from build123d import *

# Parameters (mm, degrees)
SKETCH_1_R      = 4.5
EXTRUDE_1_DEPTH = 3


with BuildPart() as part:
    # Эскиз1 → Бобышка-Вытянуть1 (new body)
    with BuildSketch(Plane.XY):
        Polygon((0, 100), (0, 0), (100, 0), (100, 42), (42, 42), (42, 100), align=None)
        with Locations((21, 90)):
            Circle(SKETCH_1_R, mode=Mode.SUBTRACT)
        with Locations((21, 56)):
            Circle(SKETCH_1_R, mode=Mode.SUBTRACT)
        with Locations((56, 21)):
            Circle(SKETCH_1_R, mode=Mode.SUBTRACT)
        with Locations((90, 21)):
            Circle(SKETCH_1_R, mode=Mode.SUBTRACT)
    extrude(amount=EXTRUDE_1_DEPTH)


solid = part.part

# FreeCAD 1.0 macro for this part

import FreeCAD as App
import Part
import Sketcher
from FreeCAD import Vector
Q = App.Units.Quantity


def add_polygon(sketch, points):
    """Adds a closed chain of lines whose ends are joined by coincident constraints."""
    first, n = sketch.GeometryCount, len(points)
    for a, b in zip(points, points[1:] + points[:1]):
        sketch.addGeometry(Part.LineSegment(App.Vector(*a, 0), App.Vector(*b, 0)), False)
    for i in range(n):
        sketch.addConstraint(Sketcher.Constraint("Coincident", first + i, 2, first + (i + 1) % n, 1))

doc = App.newDocument("Part")
body = doc.addObject("PartDesign::Body", "Body")

sketch1 = body.newObject("Sketcher::SketchObject", "Sketch")
sketch1.AttachmentSupport = (doc.getObject("XY_Plane"), [""])
sketch1.MapMode = "FlatFace"
add_polygon(sketch1, [(0, 100), (0, 0), (100, 0), (100, 42), (42, 42), (42, 100)])
sketch1.addGeometry(Part.Circle(Vector(56, 21, 0), Vector(0, 0, 1), 4.5), False)
sketch1.addGeometry(Part.Circle(Vector(90, 21, 0), Vector(0, 0, 1), 4.5), False)
sketch1.addGeometry(Part.Circle(Vector(21, 56, 0), Vector(0, 0, 1), 4.5), False)
sketch1.addGeometry(Part.Circle(Vector(21, 90, 0), Vector(0, 0, 1), 4.5), False)
sketch1.addConstraint([
    Sketcher.Constraint("Vertical", 0),
    Sketcher.Constraint("Horizontal", 1),
    Sketcher.Constraint("Vertical", 2),
    Sketcher.Constraint("Horizontal", 3),
    Sketcher.Constraint("Vertical", 4),
    Sketcher.Constraint("Horizontal", 5),
    Sketcher.Constraint("Coincident", 0, 2, -1, 1),
    Sketcher.Constraint("Equal", 6, 7),
    Sketcher.Constraint("Equal", 7, 8),
    Sketcher.Constraint("Equal", 8, 9),
    Sketcher.Constraint("Horizontal", 6, 3, 7, 3),
    Sketcher.Constraint("Vertical", 8, 3, 9, 3),
    Sketcher.Constraint("Equal", 1, 0),
    Sketcher.Constraint("Equal", 5, 2),
    Sketcher.Constraint("Diameter", 6, Q("9 mm")),
    Sketcher.Constraint("DistanceX", 1, 1, 1, 2, Q("100 mm")),
    Sketcher.Constraint("DistanceX", 3, 2, 3, 1, Q("58 mm")),
    Sketcher.Constraint("DistanceX", -1, 1, 6, 3, Q("56 mm")),
    Sketcher.Constraint("DistanceY", -1, 1, 6, 3, Q("21 mm")),
    Sketcher.Constraint("DistanceX", -1, 1, 7, 3, Q("90 mm")),
    Sketcher.Constraint("DistanceX", -1, 1, 8, 3, Q("21 mm")),
    Sketcher.Constraint("DistanceY", -1, 1, 8, 3, Q("56 mm")),
    Sketcher.Constraint("DistanceY", -1, 1, 9, 3, Q("90 mm")),
])
pad1 = body.newObject("PartDesign::Pad", "Pad")
pad1.Profile = sketch1
pad1.Length = 3

doc.recompute()
